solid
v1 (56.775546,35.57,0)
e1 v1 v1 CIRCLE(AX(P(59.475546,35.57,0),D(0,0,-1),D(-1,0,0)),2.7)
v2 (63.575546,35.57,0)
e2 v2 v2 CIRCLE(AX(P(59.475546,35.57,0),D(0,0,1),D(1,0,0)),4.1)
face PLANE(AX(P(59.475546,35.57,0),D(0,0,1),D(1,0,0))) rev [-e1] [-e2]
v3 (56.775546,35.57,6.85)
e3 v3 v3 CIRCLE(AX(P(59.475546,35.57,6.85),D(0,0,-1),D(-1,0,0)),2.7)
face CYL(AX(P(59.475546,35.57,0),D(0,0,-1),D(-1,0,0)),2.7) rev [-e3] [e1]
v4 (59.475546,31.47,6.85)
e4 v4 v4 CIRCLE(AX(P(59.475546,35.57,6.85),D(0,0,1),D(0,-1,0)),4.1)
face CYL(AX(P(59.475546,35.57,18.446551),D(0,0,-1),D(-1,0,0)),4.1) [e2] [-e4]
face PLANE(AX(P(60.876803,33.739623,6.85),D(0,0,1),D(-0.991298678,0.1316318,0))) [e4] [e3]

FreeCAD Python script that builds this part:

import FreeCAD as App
import Part
import Sketcher

V = App.Vector
Q = App.Units.Quantity

doc = App.newDocument("Part")
body = doc.addObject("PartDesign::Body", "Body")

# Sketch on XY plane
sketch1 = body.newObject("Sketcher::SketchObject", "Sketch")
sketch1.AttachmentSupport = (doc.getObject("XY_Plane"), [""])
sketch1.MapMode = "FlatFace"
sketch1.addGeometry(Part.Circle(V(59.5, 35.6, 0), V(0, 0, 1), 4.1), False)
sketch1.addConstraint(Sketcher.Constraint("Diameter", 0, Q("8.2 mm")))
sketch1.addConstraint(Sketcher.Constraint("DistanceY", -1, 1, 0, 3, Q("35.57 mm")))
sketch1.addConstraint(Sketcher.Constraint("DistanceX", -1, 1, 0, 3, Q("59.475546 mm")))
pad1 = body.newObject("PartDesign::Pad", "Pad")
pad1.Profile = sketch1
pad1.Length = 6.85

# Sketch on XY plane
sketch2 = body.newObject("Sketcher::SketchObject", "Sketch001")
sketch2.AttachmentSupport = (doc.getObject("XY_Plane"), [""])
sketch2.MapMode = "FlatFace"
sketch2.addGeometry(Part.Circle(V(59.5, 35.6, 0), V(0, 0, 1), 2.7), False)
sketch2.addConstraint(Sketcher.Constraint("Diameter", 0, Q("5.4 mm")))
sketch2.addConstraint(Sketcher.Constraint("DistanceY", -1, 1, 0, 3, Q("35.57 mm")))
sketch2.addConstraint(Sketcher.Constraint("DistanceX", -1, 1, 0, 3, Q("59.475546 mm")))
doc.recompute()
hole = body.newObject("PartDesign::Hole", "Hole")
hole.Profile = sketch2
hole.ThreadType = "None"
hole.Diameter = 5.4
hole.DepthType = "ThroughAll"
hole.Reversed = True

doc.recompute()
